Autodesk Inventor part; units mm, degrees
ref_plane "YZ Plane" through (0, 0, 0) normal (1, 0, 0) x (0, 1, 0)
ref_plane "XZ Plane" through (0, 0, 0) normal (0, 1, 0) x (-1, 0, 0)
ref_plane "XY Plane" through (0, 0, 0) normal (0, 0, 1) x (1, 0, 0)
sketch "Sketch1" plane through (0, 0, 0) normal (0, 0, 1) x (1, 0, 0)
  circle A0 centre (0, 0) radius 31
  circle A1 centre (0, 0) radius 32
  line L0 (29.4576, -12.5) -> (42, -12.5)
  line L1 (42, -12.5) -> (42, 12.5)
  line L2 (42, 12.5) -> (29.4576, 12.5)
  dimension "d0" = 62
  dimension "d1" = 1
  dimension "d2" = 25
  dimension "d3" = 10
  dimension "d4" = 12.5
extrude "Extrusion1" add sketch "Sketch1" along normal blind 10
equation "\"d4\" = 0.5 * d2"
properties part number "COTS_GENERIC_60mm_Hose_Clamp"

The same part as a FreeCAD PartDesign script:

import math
import FreeCAD as App
import Part
import Sketcher

doc = App.newDocument("Part")
body = doc.addObject("PartDesign::Body", "Body")

sketch1 = body.newObject("Sketcher::SketchObject", "Sketch")
sketch1.AttachmentSupport = (doc.getObject("XY_Plane"), [""])
sketch1.MapMode = "FlatFace"
sketch1.addGeometry([
    Part.ArcOfCircle(Part.Circle(App.Vector(0, 0, 0), App.Vector(0, 0, 1), 32), math.radians(23), math.radians(337)),
    Part.LineSegment(App.Vector(29, -12, 0), App.Vector(42, -12, 0)),
    Part.LineSegment(App.Vector(42, -12, 0), App.Vector(42, 12, 0)),
    Part.LineSegment(App.Vector(42, 12, 0), App.Vector(29, 12, 0)),
    Part.Circle(App.Vector(0, 0, 0), App.Vector(0, 0, 1), 31),
], False)
sketch1.addConstraint([
    Sketcher.Constraint("Coincident", 0, 2, 1, 1),
    Sketcher.Constraint("Coincident", 1, 2, 2, 1),
    Sketcher.Constraint("Coincident", 2, 2, 3, 1),
    Sketcher.Constraint("Coincident", 3, 2, 0, 1),
    Sketcher.Constraint("Horizontal", 1),
    Sketcher.Constraint("Vertical", 2),
    Sketcher.Constraint("Horizontal", 3),
    Sketcher.Constraint("Coincident", 0, 3, -1, 1),
    Sketcher.Constraint("Coincident", 4, 3, -1, 1),
    Sketcher.Constraint("Vertical", 0, 2, 3, 2),
    Sketcher.Constraint("Diameter", 4, 62.0),
    Sketcher.Constraint("DistanceY", 2, 1, 2, 2, 25.0),
    Sketcher.Constraint("Radius", 0, 32.0),
    Sketcher.Constraint("DistanceX", -1, 1, 1, 2, 42.0),
])
pad1 = body.newObject("PartDesign::Pad", "Pad")
pad1.Profile = sketch1
pad1.Length = 10

doc.recompute()
